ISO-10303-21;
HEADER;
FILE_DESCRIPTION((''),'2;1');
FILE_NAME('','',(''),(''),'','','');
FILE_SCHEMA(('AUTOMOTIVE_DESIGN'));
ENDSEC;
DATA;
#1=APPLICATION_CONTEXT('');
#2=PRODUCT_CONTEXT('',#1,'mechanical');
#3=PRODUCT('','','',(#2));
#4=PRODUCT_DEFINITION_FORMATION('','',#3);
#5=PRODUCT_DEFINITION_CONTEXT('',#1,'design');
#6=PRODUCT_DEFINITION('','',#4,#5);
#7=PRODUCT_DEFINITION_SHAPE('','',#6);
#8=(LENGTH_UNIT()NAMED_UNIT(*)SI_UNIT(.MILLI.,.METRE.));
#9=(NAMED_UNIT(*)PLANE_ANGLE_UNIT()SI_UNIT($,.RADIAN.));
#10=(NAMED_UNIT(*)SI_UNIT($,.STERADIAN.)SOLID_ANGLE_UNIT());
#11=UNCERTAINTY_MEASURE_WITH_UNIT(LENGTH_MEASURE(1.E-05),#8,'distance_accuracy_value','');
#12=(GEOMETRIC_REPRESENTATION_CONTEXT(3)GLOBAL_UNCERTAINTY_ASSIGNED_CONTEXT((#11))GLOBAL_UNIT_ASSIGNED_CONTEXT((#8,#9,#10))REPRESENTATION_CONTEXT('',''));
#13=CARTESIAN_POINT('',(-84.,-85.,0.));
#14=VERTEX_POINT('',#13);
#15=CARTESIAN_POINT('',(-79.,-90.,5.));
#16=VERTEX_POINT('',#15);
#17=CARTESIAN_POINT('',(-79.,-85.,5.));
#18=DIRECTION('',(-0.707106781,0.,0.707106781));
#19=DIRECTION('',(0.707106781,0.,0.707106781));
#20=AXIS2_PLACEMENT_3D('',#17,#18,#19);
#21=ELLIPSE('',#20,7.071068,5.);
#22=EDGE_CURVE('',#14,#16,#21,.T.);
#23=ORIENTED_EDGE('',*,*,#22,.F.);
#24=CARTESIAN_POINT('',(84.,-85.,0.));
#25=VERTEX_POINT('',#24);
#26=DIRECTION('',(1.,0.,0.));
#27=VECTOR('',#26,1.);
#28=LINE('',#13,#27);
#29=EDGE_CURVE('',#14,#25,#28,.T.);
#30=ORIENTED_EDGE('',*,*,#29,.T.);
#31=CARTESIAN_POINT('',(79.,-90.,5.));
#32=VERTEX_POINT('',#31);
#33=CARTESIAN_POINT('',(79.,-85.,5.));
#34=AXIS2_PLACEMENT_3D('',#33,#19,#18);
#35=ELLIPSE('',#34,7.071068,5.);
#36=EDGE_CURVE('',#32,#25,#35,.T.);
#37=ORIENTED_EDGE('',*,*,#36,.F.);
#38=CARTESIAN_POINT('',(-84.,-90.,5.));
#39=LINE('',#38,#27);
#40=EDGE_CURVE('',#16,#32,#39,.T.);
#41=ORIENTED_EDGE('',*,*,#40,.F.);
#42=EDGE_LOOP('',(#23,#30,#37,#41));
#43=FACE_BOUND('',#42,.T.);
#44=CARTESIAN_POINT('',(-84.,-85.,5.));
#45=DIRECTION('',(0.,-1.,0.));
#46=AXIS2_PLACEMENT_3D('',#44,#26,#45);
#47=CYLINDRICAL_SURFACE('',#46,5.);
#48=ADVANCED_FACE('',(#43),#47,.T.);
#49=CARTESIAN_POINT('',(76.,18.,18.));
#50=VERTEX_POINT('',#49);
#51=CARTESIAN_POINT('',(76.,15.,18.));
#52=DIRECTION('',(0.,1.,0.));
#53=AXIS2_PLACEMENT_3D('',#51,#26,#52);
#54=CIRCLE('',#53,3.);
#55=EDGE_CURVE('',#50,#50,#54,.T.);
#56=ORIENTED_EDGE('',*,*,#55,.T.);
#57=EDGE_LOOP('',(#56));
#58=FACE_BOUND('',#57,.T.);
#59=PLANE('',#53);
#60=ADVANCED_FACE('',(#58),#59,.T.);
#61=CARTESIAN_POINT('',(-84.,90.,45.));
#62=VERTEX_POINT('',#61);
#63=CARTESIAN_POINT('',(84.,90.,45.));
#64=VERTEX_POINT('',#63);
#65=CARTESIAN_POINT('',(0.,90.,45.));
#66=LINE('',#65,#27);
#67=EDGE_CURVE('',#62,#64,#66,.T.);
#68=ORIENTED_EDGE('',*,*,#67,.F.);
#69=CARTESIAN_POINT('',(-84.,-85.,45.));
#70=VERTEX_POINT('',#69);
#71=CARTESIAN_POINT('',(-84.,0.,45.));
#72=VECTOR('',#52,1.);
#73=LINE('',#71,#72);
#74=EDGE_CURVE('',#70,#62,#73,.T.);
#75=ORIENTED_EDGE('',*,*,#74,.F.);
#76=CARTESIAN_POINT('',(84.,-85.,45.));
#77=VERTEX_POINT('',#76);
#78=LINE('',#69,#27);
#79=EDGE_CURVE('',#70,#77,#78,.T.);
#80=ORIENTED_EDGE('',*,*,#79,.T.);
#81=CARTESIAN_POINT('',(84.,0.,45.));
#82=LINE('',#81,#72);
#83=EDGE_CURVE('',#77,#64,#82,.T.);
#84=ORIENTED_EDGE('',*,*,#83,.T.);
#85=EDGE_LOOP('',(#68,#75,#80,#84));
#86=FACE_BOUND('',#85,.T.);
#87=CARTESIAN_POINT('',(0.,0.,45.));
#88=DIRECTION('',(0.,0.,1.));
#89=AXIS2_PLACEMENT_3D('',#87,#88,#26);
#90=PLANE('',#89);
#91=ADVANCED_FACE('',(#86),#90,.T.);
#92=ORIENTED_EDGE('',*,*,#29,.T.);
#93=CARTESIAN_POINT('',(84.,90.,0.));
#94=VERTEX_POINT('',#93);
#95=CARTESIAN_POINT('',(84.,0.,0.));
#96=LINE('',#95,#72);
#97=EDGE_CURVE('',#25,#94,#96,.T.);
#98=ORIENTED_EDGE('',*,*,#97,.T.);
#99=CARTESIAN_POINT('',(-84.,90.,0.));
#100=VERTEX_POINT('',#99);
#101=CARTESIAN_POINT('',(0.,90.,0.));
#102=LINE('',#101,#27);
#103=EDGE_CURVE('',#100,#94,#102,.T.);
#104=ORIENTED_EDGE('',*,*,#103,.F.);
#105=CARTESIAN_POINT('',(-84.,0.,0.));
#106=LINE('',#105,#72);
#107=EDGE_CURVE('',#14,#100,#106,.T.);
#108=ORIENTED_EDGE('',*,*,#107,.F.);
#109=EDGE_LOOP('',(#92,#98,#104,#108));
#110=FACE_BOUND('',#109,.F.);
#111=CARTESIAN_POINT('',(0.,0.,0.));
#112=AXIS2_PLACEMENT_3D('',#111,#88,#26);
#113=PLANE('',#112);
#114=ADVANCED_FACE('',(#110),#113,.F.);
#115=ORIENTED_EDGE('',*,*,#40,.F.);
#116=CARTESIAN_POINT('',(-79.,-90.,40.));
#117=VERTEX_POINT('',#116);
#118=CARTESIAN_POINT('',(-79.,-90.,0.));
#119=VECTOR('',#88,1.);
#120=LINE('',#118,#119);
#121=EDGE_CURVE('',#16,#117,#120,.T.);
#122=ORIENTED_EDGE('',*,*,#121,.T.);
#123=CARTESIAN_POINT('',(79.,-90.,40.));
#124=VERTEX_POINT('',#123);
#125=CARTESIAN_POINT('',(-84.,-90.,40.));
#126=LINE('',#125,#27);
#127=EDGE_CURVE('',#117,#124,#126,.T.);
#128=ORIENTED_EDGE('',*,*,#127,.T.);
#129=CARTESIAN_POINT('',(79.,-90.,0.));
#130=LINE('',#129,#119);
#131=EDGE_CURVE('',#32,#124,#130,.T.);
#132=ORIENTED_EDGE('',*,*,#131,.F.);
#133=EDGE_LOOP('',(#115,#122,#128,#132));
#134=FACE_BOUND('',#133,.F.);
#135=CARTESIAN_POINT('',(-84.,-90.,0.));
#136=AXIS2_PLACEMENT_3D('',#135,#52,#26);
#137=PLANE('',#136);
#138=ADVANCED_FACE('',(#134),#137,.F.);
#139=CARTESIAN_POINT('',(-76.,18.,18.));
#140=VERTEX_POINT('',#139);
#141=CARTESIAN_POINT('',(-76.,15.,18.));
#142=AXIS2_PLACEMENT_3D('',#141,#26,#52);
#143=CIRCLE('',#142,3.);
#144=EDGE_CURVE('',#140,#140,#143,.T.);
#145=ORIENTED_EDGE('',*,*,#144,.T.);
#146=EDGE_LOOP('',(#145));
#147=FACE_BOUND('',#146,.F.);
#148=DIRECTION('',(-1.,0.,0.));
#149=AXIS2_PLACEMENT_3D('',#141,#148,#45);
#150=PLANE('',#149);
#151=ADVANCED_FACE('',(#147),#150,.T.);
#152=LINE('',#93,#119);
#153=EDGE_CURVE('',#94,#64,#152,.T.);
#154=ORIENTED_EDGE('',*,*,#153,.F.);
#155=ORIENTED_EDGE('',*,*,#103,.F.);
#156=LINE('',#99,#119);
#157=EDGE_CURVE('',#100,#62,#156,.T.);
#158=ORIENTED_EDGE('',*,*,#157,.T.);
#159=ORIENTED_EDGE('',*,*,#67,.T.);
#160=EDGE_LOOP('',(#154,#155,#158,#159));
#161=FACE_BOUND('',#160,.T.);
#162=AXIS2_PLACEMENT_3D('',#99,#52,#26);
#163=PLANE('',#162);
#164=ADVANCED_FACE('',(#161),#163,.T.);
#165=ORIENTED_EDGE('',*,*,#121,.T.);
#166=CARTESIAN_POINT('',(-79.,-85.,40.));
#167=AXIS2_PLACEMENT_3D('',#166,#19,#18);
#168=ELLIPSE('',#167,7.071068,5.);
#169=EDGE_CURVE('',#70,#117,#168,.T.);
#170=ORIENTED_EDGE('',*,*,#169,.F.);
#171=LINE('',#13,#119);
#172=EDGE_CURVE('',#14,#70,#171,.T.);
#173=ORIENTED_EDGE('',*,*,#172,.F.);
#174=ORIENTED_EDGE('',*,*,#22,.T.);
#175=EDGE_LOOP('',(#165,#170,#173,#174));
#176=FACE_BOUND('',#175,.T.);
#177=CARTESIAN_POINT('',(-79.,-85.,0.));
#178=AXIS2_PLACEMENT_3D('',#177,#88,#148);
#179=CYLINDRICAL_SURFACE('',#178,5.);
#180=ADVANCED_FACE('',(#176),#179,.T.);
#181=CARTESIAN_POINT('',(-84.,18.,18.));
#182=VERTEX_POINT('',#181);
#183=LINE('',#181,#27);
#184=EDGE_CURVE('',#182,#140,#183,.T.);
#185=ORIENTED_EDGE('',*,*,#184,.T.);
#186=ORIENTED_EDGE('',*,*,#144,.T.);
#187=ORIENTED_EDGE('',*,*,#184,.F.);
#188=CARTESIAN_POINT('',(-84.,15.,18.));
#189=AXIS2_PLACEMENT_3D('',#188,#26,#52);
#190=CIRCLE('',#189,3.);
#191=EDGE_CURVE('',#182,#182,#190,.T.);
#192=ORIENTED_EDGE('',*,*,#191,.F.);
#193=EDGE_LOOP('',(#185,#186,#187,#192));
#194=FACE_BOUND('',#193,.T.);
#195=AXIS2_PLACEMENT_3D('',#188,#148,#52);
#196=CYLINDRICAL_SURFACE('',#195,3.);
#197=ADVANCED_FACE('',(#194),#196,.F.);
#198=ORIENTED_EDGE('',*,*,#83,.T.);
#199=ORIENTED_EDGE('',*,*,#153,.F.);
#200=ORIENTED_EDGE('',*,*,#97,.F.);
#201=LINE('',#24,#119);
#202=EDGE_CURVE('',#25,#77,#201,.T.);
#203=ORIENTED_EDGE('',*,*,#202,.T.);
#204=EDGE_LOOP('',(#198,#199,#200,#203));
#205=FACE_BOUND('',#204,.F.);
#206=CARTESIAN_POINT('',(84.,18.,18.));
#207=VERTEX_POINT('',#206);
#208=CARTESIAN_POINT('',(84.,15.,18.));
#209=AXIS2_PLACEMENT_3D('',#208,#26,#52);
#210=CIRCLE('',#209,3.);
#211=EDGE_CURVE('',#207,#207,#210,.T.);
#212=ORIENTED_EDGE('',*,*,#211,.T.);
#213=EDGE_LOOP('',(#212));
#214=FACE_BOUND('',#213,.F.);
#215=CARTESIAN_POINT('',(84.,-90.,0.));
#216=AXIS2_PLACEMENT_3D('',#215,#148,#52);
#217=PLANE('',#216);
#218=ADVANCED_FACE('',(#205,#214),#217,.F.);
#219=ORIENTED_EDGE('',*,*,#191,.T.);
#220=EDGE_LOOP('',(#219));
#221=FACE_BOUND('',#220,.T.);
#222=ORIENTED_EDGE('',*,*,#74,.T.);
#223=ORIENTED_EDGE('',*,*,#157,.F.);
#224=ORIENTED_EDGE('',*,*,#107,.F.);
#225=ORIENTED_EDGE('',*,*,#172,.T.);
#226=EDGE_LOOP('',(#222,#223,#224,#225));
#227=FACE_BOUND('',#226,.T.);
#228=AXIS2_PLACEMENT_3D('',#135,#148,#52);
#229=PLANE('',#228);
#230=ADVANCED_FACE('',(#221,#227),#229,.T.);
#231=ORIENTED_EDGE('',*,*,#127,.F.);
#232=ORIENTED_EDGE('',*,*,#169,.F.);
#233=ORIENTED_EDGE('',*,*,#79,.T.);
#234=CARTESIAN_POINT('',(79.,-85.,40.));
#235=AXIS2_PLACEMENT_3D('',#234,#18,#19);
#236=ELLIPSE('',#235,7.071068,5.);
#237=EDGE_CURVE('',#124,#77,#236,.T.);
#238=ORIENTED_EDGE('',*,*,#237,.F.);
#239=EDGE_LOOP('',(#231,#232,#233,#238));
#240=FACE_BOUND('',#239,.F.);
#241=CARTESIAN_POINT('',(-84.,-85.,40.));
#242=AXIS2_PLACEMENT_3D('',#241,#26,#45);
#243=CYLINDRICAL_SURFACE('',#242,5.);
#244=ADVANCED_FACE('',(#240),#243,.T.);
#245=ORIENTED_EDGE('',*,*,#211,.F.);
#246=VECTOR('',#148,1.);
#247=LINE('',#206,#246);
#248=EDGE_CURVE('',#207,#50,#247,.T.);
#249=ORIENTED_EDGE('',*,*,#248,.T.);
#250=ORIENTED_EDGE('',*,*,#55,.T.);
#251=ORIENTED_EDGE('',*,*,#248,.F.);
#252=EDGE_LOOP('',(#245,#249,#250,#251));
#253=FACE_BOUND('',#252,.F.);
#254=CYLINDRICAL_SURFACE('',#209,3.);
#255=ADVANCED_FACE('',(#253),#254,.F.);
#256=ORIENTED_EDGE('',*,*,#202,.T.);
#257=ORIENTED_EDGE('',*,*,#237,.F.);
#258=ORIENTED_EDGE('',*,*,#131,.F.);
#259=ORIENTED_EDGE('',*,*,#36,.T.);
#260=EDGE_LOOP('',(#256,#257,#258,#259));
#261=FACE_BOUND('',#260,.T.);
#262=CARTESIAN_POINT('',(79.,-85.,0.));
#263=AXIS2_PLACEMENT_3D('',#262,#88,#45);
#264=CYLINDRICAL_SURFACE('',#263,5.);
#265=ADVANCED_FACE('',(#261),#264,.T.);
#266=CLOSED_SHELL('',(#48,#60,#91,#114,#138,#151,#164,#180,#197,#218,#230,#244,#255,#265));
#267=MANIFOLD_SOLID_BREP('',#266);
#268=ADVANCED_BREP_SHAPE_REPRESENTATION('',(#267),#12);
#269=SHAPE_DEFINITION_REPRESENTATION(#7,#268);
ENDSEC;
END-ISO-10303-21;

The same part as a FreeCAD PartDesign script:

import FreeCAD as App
import Part
import Sketcher
from FreeCAD import Vector
Q = App.Units.Quantity


def edges_at(feature, points):
    """Names of the edges that pass closest to the given points."""
    edges = feature.Shape.Edges
    near = lambda p: min(range(len(edges)), key=lambda i: edges[i].distToShape(Part.Vertex(*p))[0])
    return sorted({f"Edge{near(p) + 1}" for p in points})

doc = App.newDocument("Part")
params = doc.addObject("Spreadsheet::Sheet", "Params")
for row, (alias, value) in enumerate([
    ("sketch1_width", "168 mm"),
    ("sketch1_height", "180 mm"),
    ("pad1_length", "45 mm"),
    ("sketch2_diameter", "6 mm"),
    ("pocket1_length", "8 mm"),
    ("fillet_radius", "5 mm"),
], start=1):
    params.set(f"A{row}", alias)
    params.set(f"B{row}", "=" + value)
    params.setAlias(f"B{row}", alias)

body = doc.addObject("PartDesign::Body", "Body")

sketch1 = body.newObject("Sketcher::SketchObject", "Sketch")
sketch1.AttachmentSupport = (doc.getObject("XY_Plane"), [""])
sketch1.MapMode = "FlatFace"
sketch1.addGeometry(Part.LineSegment(Vector(-84, 90, 0), Vector(-84, -90, 0)), False)
sketch1.addGeometry(Part.LineSegment(Vector(-84, -90, 0), Vector(84, -90, 0)), False)
sketch1.addGeometry(Part.LineSegment(Vector(84, -90, 0), Vector(84, 90, 0)), False)
sketch1.addGeometry(Part.LineSegment(Vector(84, 90, 0), Vector(-84, 90, 0)), False)
sketch1.addConstraint(Sketcher.Constraint("Coincident", 0, 2, 1, 1))
sketch1.addConstraint(Sketcher.Constraint("Coincident", 1, 2, 2, 1))
sketch1.addConstraint(Sketcher.Constraint("Coincident", 2, 2, 3, 1))
sketch1.addConstraint(Sketcher.Constraint("Coincident", 3, 2, 0, 1))
sketch1.addConstraint(Sketcher.Constraint("Vertical", 0))
sketch1.addConstraint(Sketcher.Constraint("Horizontal", 1))
sketch1.addConstraint(Sketcher.Constraint("Vertical", 2))
sketch1.addConstraint(Sketcher.Constraint("Horizontal", 3))
sketch1.addConstraint(Sketcher.Constraint("Symmetric", 0, 2, 2, 2, -1, 1))
sketch1.addConstraint(Sketcher.Constraint("DistanceX", 1, 1, 1, 2, Q("168 mm")))
sketch1.addConstraint(Sketcher.Constraint("DistanceY", 0, 2, 0, 1, Q("180 mm")))
sketch1.setExpression("Constraints[9]", "Params.sketch1_width")
sketch1.setExpression("Constraints[10]", "Params.sketch1_height")
pad1 = body.newObject("PartDesign::Pad", "Pad")
pad1.Profile = sketch1
pad1.setExpression("Length", "Params.pad1_length")

sketch2 = body.newObject("Sketcher::SketchObject", "Sketch001")
sketch2.AttachmentSupport = (doc.getObject("YZ_Plane"), [""])
sketch2.MapMode = "FlatFace"
sketch2.AttachmentOffset = App.Placement(Vector(0, 0, 84), App.Rotation())
sketch2.addGeometry(Part.Circle(Vector(15, 18, 0), Vector(0, 0, 1), 3), False)
sketch2.addConstraint(Sketcher.Constraint("Diameter", 0, Q("6 mm")))
sketch2.addConstraint(Sketcher.Constraint("DistanceX", -1, 1, 0, 3, Q("15 mm")))
sketch2.addConstraint(Sketcher.Constraint("DistanceY", -1, 1, 0, 3, Q("18 mm")))
sketch2.setExpression("Constraints[0]", "Params.sketch2_diameter")
pocket1 = body.newObject("PartDesign::Pocket", "Pocket")
pocket1.Profile = sketch2
pocket1.setExpression("Length", "Params.pocket1_length")
doc.recompute()

mirrored = body.newObject("PartDesign::Mirrored", "Mirrored")
mirrored.Originals = [pocket1]
mirrored.MirrorPlane = (doc.getObject("YZ_Plane"), [""])
body.Tip = mirrored
doc.recompute()

fillet = body.newObject("PartDesign::Fillet", "Fillet")
fillet.Base = (mirrored, edges_at(mirrored, [
    (84, -90, 22.5),
    (-84, -90, 22.5),
    (0, -90, 0),
    (0, -90, 45),
]))
fillet.setExpression("Radius", "Params.fillet_radius")

doc.recompute()
